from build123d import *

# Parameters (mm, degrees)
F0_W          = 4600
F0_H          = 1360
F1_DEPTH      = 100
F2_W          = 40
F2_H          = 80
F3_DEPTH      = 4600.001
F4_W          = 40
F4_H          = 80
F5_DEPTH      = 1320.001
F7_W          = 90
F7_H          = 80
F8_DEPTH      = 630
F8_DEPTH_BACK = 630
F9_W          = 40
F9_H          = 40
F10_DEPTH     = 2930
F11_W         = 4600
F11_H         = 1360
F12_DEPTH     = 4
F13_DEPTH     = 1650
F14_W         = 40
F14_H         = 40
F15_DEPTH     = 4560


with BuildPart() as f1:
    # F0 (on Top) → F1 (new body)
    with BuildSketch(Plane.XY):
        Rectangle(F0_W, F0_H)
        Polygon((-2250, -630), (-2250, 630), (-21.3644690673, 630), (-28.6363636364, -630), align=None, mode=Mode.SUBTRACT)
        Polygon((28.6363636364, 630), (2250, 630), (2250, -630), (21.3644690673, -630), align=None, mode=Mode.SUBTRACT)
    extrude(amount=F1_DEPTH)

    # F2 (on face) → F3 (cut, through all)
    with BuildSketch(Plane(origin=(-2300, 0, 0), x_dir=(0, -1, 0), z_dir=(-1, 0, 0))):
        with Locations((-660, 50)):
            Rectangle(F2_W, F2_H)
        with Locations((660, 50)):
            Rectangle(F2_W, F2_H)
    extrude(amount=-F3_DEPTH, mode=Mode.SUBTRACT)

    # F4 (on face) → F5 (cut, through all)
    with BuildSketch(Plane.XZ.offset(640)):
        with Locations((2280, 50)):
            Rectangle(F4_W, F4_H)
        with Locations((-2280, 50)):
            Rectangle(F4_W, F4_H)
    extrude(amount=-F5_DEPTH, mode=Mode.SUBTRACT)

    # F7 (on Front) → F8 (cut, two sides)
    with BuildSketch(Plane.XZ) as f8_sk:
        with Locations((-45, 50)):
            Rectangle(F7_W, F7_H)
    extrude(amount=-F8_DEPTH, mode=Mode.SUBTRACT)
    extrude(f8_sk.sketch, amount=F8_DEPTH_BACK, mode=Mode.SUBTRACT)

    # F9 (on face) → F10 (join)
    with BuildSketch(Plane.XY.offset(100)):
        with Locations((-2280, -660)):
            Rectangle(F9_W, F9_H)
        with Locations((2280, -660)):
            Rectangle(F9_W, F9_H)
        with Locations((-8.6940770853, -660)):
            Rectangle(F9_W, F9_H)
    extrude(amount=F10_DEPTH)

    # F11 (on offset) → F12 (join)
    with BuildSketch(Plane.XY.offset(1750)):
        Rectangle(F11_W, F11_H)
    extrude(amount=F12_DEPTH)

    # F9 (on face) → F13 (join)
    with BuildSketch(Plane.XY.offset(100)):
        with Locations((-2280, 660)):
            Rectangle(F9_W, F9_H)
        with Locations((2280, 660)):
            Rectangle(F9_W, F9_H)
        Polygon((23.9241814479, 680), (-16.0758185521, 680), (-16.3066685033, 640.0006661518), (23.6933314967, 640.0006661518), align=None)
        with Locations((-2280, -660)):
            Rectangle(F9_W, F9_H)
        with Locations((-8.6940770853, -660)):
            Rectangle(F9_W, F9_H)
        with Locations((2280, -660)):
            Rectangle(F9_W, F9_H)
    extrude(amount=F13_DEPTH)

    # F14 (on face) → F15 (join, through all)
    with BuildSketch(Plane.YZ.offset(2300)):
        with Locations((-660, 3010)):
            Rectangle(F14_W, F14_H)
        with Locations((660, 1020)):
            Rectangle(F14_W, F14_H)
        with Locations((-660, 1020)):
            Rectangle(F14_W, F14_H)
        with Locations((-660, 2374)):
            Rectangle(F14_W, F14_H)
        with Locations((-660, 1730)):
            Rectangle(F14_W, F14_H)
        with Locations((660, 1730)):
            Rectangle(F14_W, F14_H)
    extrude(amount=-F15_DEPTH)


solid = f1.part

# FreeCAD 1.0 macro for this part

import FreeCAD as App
import Part
import Sketcher


def add_polygon(sketch, points):
    """Adds a closed chain of lines whose ends are joined by coincident constraints."""
    first, n = sketch.GeometryCount, len(points)
    for a, b in zip(points, points[1:] + points[:1]):
        sketch.addGeometry(Part.LineSegment(App.Vector(*a, 0), App.Vector(*b, 0)), False)
    for i in range(n):
        sketch.addConstraint(Sketcher.Constraint("Coincident", first + i, 2, first + (i + 1) % n, 1))

doc = App.newDocument("Part")
body = doc.addObject("PartDesign::Body", "Body")

# Sketch on XY plane
sketch1 = body.newObject("Sketcher::SketchObject", "Sketch")
sketch1.AttachmentSupport = (doc.getObject("XY_Plane"), [""])
sketch1.MapMode = "FlatFace"
add_polygon(sketch1, [(-2300, 680), (-2300, -680), (2300, -680), (2300, 680)])  # lines 0-3
add_polygon(sketch1, [(-28.636364, -630), (-2250, -630), (-2250, 630), (-21.364469, 630)])  # lines 4-7
add_polygon(sketch1, [(21.364469, -630), (28.636364, 630), (2250, 630), (2250, -630)])  # lines 8-11
sketch1.addConstraint([
    Sketcher.Constraint("Vertical", 0),
    Sketcher.Constraint("Horizontal", 1),
    Sketcher.Constraint("Vertical", 2),
    Sketcher.Constraint("Horizontal", 3),
    Sketcher.Constraint("Horizontal", 4),
    Sketcher.Constraint("Vertical", 5),
    Sketcher.Constraint("Horizontal", 6),
    Sketcher.Constraint("Horizontal", 9),
    Sketcher.Constraint("Vertical", 10),
    Sketcher.Constraint("Horizontal", 11),
    Sketcher.Constraint("Symmetric", 0, 2, 2, 2, -1, 1),
    Sketcher.Constraint("Symmetric", 7, 2, 8, 2, -1, 1),
    Sketcher.Constraint("Symmetric", 5, 2, 10, 2, -1, 1),
    Sketcher.Constraint("Parallel", 7, 8),
    Sketcher.Constraint("Horizontal", 6, 2, 8, 2),
    Sketcher.Constraint("DistanceX", 1, 1, 1, 2, 4600.0),
    Sketcher.Constraint("DistanceY", 0, 2, 0, 1, 1360.0),
    Sketcher.Constraint("DistanceY", 5, 1, 5, 2, 1260.0),
    Sketcher.Constraint("DistanceX", 4, 2, -1, 1, 2250.0),
    Sketcher.Constraint("DistanceX", 6, 1, 6, 2, 2228.635531),
    Sketcher.Constraint("DistanceX", 4, 2, 4, 1, 2221.363636),
])
pad1 = body.newObject("PartDesign::Pad", "Pad")
pad1.Profile = sketch1
pad1.Length = 100

# Sketch on YZ plane
sketch2 = body.newObject("Sketcher::SketchObject", "Sketch001")
sketch2.AttachmentSupport = (doc.getObject("YZ_Plane"), [""])
sketch2.MapMode = "FlatFace"
sketch2.AttachmentOffset = App.Placement(App.Vector(0, 0, -2300), App.Rotation())
add_polygon(sketch2, [(680, 90), (680, 10), (640, 10), (640, 90)])  # lines 0-3
add_polygon(sketch2, [(-640, 90), (-640, 10), (-680, 10), (-680, 90)])  # lines 4-7
sketch2.addConstraint([
    Sketcher.Constraint("Vertical", 0),
    Sketcher.Constraint("Horizontal", 1),
    Sketcher.Constraint("Vertical", 2),
    Sketcher.Constraint("Horizontal", 3),
    Sketcher.Constraint("Vertical", 4),
    Sketcher.Constraint("Horizontal", 5),
    Sketcher.Constraint("Vertical", 6),
    Sketcher.Constraint("Horizontal", 7),
    Sketcher.Constraint("Symmetric", 1, 2, 4, 2, -2),
    Sketcher.Constraint("Symmetric", 3, 2, 6, 2, -2),
    Sketcher.Constraint("DistanceX", 1, 2, 1, 1, 40.0),
    Sketcher.Constraint("DistanceY", 0, 2, 0, 1, 80.0),
    Sketcher.Constraint("DistanceX", -1, 1, 0, 2, 680.0),
    Sketcher.Constraint("DistanceY", -1, 1, 0, 2, 10.0),
])
pocket1 = body.newObject("PartDesign::Pocket", "Pocket")
pocket1.Profile = sketch2
pocket1.Type = "ThroughAll"
pocket1.Reversed = True

# Sketch on XZ plane
sketch3 = body.newObject("Sketcher::SketchObject", "Sketch002")
sketch3.AttachmentSupport = (doc.getObject("XZ_Plane"), [""])
sketch3.MapMode = "FlatFace"
sketch3.AttachmentOffset = App.Placement(App.Vector(0, 0, 640), App.Rotation())
add_polygon(sketch3, [(2260, 90), (2260, 10), (2300, 10), (2300, 90)])  # lines 0-3
add_polygon(sketch3, [(-2300, 90), (-2300, 10), (-2260, 10), (-2260, 90)])  # lines 4-7
sketch3.addConstraint([
    Sketcher.Constraint("Vertical", 0),
    Sketcher.Constraint("Horizontal", 1),
    Sketcher.Constraint("Vertical", 2),
    Sketcher.Constraint("Horizontal", 3),
    Sketcher.Constraint("Vertical", 4),
    Sketcher.Constraint("Horizontal", 5),
    Sketcher.Constraint("Vertical", 6),
    Sketcher.Constraint("Horizontal", 7),
    Sketcher.Constraint("Symmetric", 1, 2, 4, 2, -2),
    Sketcher.Constraint("Symmetric", 3, 2, 6, 2, -2),
    Sketcher.Constraint("DistanceX", 1, 1, 1, 2, 40.0),
    Sketcher.Constraint("DistanceY", 0, 2, 0, 1, 80.0),
    Sketcher.Constraint("DistanceX", -1, 1, 0, 2, 2260.0),
    Sketcher.Constraint("DistanceY", -1, 1, 0, 2, 10.0),
])
pocket2 = body.newObject("PartDesign::Pocket", "Pocket001")
pocket2.Profile = sketch3
pocket2.Type = "ThroughAll"

# Sketch on XZ plane
sketch4 = body.newObject("Sketcher::SketchObject", "Sketch003")
sketch4.AttachmentSupport = (doc.getObject("XZ_Plane"), [""])
sketch4.MapMode = "FlatFace"
add_polygon(sketch4, [(-90, 90), (-90, 10), (0, 10), (0, 90)])  # lines 0-3
sketch4.addConstraint([
    Sketcher.Constraint("Vertical", 0),
    Sketcher.Constraint("Horizontal", 1),
    Sketcher.Constraint("Vertical", 2),
    Sketcher.Constraint("Horizontal", 3),
    Sketcher.Constraint("PointOnObject", 1, 2, -2),
    Sketcher.Constraint("DistanceX", 1, 1, 1, 2, 90.0),
    Sketcher.Constraint("DistanceY", 0, 2, 0, 1, 80.0),
    Sketcher.Constraint("DistanceY", -1, 1, 0, 2, 10.0),
])
pocket3 = body.newObject("PartDesign::Pocket", "Pocket002")
pocket3.Profile = sketch4
pocket3.Type = "TwoLengths"
pocket3.Length = 630
pocket3.Length2 = 630

# Sketch on XY plane
sketch5 = body.newObject("Sketcher::SketchObject", "Sketch004")
sketch5.AttachmentSupport = (doc.getObject("XY_Plane"), [""])
sketch5.MapMode = "FlatFace"
sketch5.AttachmentOffset = App.Placement(App.Vector(0, 0, 100), App.Rotation())
add_polygon(sketch5, [(-2300, -640), (-2300, -680), (-2260, -680), (-2260, -640)])  # lines 0-3
add_polygon(sketch5, [(2260, -640), (2260, -680), (2300, -680), (2300, -640)])  # lines 4-7
add_polygon(sketch5, [(-28.694077, -640), (-28.694077, -680), (11.305923, -680), (11.305923, -640)])  # lines 8-11
sketch5.addConstraint([
    Sketcher.Constraint("Vertical", 0),
    Sketcher.Constraint("Horizontal", 1),
    Sketcher.Constraint("Vertical", 2),
    Sketcher.Constraint("Horizontal", 3),
    Sketcher.Constraint("Vertical", 4),
    Sketcher.Constraint("Horizontal", 5),
    Sketcher.Constraint("Vertical", 6),
    Sketcher.Constraint("Horizontal", 7),
    Sketcher.Constraint("Vertical", 8),
    Sketcher.Constraint("Horizontal", 9),
    Sketcher.Constraint("Vertical", 10),
    Sketcher.Constraint("Horizontal", 11),
    Sketcher.Constraint("Symmetric", 1, 2, 4, 2, -2),
    Sketcher.Constraint("Symmetric", 3, 2, 6, 2, -2),
    Sketcher.Constraint("Horizontal", 5, 2, 8, 2),
    Sketcher.Constraint("Horizontal", 7, 2, 10, 2),
    Sketcher.Constraint("Equal", 7, 9),
    Sketcher.Constraint("Equal", 11, 0),
    Sketcher.Constraint("DistanceX", 1, 1, 1, 2, 40.0),
    Sketcher.Constraint("DistanceX", 0, 2, -1, 1, 2300.0),
    Sketcher.Constraint("DistanceY", 0, 2, -1, 1, 680.0),
    Sketcher.Constraint("DistanceX", 8, 2, -1, 1, 28.694077),
])
pad2 = body.newObject("PartDesign::Pad", "Pad001")
pad2.Profile = sketch5
pad2.Length = 2930

# Sketch on XY plane
sketch6 = body.newObject("Sketcher::SketchObject", "Sketch005")
sketch6.AttachmentSupport = (doc.getObject("XY_Plane"), [""])
sketch6.MapMode = "FlatFace"
sketch6.AttachmentOffset = App.Placement(App.Vector(0, 0, 1750), App.Rotation())
add_polygon(sketch6, [(-2300, 680), (-2300, -680), (2300, -680), (2300, 680)])  # lines 0-3
sketch6.addConstraint([
    Sketcher.Constraint("Vertical", 0),
    Sketcher.Constraint("Horizontal", 1),
    Sketcher.Constraint("Vertical", 2),
    Sketcher.Constraint("Horizontal", 3),
    Sketcher.Constraint("Symmetric", 0, 2, 2, 2, -1, 1),
    Sketcher.Constraint("DistanceX", 1, 1, 1, 2, 4600.0),
    Sketcher.Constraint("DistanceY", 0, 2, 0, 1, 1360.0),
])
pad3 = body.newObject("PartDesign::Pad", "Pad002")
pad3.Profile = sketch6
pad3.Length = 4

# Sketch on XY plane
sketch7 = body.newObject("Sketcher::SketchObject", "Sketch006")
sketch7.AttachmentSupport = (doc.getObject("XY_Plane"), [""])
sketch7.MapMode = "FlatFace"
sketch7.AttachmentOffset = App.Placement(App.Vector(0, 0, 100), App.Rotation())
add_polygon(sketch7, [(-2300, 680), (-2300, 640), (-2260, 640), (-2260, 680)])  # lines 0-3
add_polygon(sketch7, [(2260, 680), (2260, 640), (2300, 640), (2300, 680)])  # lines 4-7
add_polygon(sketch7, [(23.924181, 680), (-16.075819, 680), (-16.306669, 640.000666), (23.693331, 640.000666)])  # lines 8-11
add_polygon(sketch7, [(-2300, -640), (-2300, -680), (-2260, -680), (-2260, -640)])  # lines 12-15
add_polygon(sketch7, [(-28.694077, -640), (-28.694077, -680), (11.305923, -680), (11.305923, -640)])  # lines 16-19
add_polygon(sketch7, [(2260, -640), (2260, -680), (2300, -680), (2300, -640)])  # lines 20-23
sketch7.addConstraint([
    Sketcher.Constraint("Vertical", 0),
    Sketcher.Constraint("Horizontal", 1),
    Sketcher.Constraint("Vertical", 2),
    Sketcher.Constraint("Horizontal", 3),
    Sketcher.Constraint("Vertical", 4),
    Sketcher.Constraint("Horizontal", 5),
    Sketcher.Constraint("Vertical", 6),
    Sketcher.Constraint("Horizontal", 7),
    Sketcher.Constraint("Horizontal", 8),
    Sketcher.Constraint("Horizontal", 10),
    Sketcher.Constraint("Vertical", 12),
    Sketcher.Constraint("Horizontal", 13),
    Sketcher.Constraint("Vertical", 14),
    Sketcher.Constraint("Horizontal", 15),
    Sketcher.Constraint("Vertical", 16),
    Sketcher.Constraint("Horizontal", 17),
    Sketcher.Constraint("Vertical", 18),
    Sketcher.Constraint("Horizontal", 19),
    Sketcher.Constraint("Vertical", 20),
    Sketcher.Constraint("Horizontal", 21),
    Sketcher.Constraint("Vertical", 22),
    Sketcher.Constraint("Horizontal", 23),
    Sketcher.Constraint("Symmetric", 6, 2, 12, 2, -1, 1),
    Sketcher.Constraint("Symmetric", 4, 2, 14, 2, -1, 1),
    Sketcher.Constraint("Symmetric", 2, 2, 20, 2, -1, 1),
    Sketcher.Constraint("Symmetric", 0, 2, 22, 2, -1, 1),
    Sketcher.Constraint("Symmetric", 1, 2, 4, 2, -2),
    Sketcher.Constraint("Symmetric", 3, 2, 6, 2, -2),
    Sketcher.Constraint("Parallel", 9, 11),
    Sketcher.Constraint("Horizontal", 7, 2, 8, 2),
    Sketcher.Constraint("Horizontal", 13, 2, 16, 2),
    Sketcher.Constraint("Horizontal", 15, 2, 18, 2),
    Sketcher.Constraint("Equal", 7, 8),
    Sketcher.Constraint("Equal", 15, 17),
    Sketcher.Constraint("Equal", 23, 0),
    Sketcher.Constraint("DistanceX", 1, 1, 1, 2, 40.0),
    Sketcher.Constraint("Distance", 9, 40.0),
    Sketcher.Constraint("DistanceX", 0, 2, -1, 1, 2300.0),
    Sketcher.Constraint("DistanceY", -1, 1, 0, 2, 640.0),
    Sketcher.Constraint("DistanceX", 8, 2, -1, 1, 16.075819),
    Sketcher.Constraint("DistanceX", 9, 2, -1, 1, 16.306669),
    Sketcher.Constraint("DistanceX", 16, 2, 9, 2, 12.387409),
])
pad4 = body.newObject("PartDesign::Pad", "Pad003")
pad4.Profile = sketch7
pad4.Length = 1650

# Sketch on YZ plane
sketch8 = body.newObject("Sketcher::SketchObject", "Sketch007")
sketch8.AttachmentSupport = (doc.getObject("YZ_Plane"), [""])
sketch8.MapMode = "FlatFace"
sketch8.AttachmentOffset = App.Placement(App.Vector(0, 0, 2300), App.Rotation())
add_polygon(sketch8, [(-680, 3030), (-680, 2990), (-640, 2990), (-640, 3030)])  # lines 0-3
add_polygon(sketch8, [(640, 1040), (640, 1000), (680, 1000), (680, 1040)])  # lines 4-7
add_polygon(sketch8, [(-680, 1040), (-680, 1000), (-640, 1000), (-640, 1040)])  # lines 8-11
add_polygon(sketch8, [(-680, 2394), (-680, 2354), (-640, 2354), (-640, 2394)])  # lines 12-15
add_polygon(sketch8, [(-680, 1750), (-680, 1710), (-640, 1710), (-640, 1750)])  # lines 16-19
add_polygon(sketch8, [(640, 1750), (640, 1710), (680, 1710), (680, 1750)])  # lines 20-23
sketch8.addConstraint([
    Sketcher.Constraint("Vertical", 0),
    Sketcher.Constraint("Horizontal", 1),
    Sketcher.Constraint("Vertical", 2),
    Sketcher.Constraint("Horizontal", 3),
    Sketcher.Constraint("Vertical", 4),
    Sketcher.Constraint("Horizontal", 5),
    Sketcher.Constraint("Vertical", 6),
    Sketcher.Constraint("Horizontal", 7),
    Sketcher.Constraint("Vertical", 8),
    Sketcher.Constraint("Horizontal", 9),
    Sketcher.Constraint("Vertical", 10),
    Sketcher.Constraint("Horizontal", 11),
    Sketcher.Constraint("Vertical", 12),
    Sketcher.Constraint("Horizontal", 13),
    Sketcher.Constraint("Vertical", 14),
    Sketcher.Constraint("Horizontal", 15),
    Sketcher.Constraint("Vertical", 16),
    Sketcher.Constraint("Horizontal", 17),
    Sketcher.Constraint("Vertical", 18),
    Sketcher.Constraint("Horizontal", 19),
    Sketcher.Constraint("Vertical", 20),
    Sketcher.Constraint("Horizontal", 21),
    Sketcher.Constraint("Vertical", 22),
    Sketcher.Constraint("Horizontal", 23),
    Sketcher.Constraint("Symmetric", 5, 2, 8, 2, -2),
    Sketcher.Constraint("Symmetric", 7, 2, 10, 2, -2),
    Sketcher.Constraint("Symmetric", 17, 2, 20, 2, -2),
    Sketcher.Constraint("Symmetric", 19, 2, 22, 2, -2),
    Sketcher.Constraint("Vertical", 3, 2, 8, 2),
    Sketcher.Constraint("Vertical", 2, 2, 9, 2),
    Sketcher.Constraint("Vertical", 11, 2, 12, 2),
    Sketcher.Constraint("Vertical", 10, 2, 13, 2),
    Sketcher.Constraint("Vertical", 15, 2, 16, 2),
    Sketcher.Constraint("Vertical", 14, 2, 17, 2),
    Sketcher.Constraint("Equal", 23, 0),
    Sketcher.Constraint("Equal", 2, 4),
    Sketcher.Constraint("Equal", 10, 12),
    Sketcher.Constraint("Equal", 14, 16),
    Sketcher.Constraint("DistanceX", 1, 1, 1, 2, 40.0),
    Sketcher.Constraint("DistanceX", 0, 2, -1, 1, 680.0),
    Sketcher.Constraint("DistanceY", -1, 1, 0, 2, 2990.0),
    Sketcher.Constraint("DistanceY", -1, 1, 4, 2, 1000.0),
    Sketcher.Constraint("DistanceY", -1, 1, 12, 2, 2354.0),
    Sketcher.Constraint("DistanceY", -1, 1, 16, 2, 1710.0),
])
pad5 = body.newObject("PartDesign::Pad", "Pad004")
pad5.Profile = sketch8
pad5.Length = 4560
pad5.Reversed = True

doc.recompute()
